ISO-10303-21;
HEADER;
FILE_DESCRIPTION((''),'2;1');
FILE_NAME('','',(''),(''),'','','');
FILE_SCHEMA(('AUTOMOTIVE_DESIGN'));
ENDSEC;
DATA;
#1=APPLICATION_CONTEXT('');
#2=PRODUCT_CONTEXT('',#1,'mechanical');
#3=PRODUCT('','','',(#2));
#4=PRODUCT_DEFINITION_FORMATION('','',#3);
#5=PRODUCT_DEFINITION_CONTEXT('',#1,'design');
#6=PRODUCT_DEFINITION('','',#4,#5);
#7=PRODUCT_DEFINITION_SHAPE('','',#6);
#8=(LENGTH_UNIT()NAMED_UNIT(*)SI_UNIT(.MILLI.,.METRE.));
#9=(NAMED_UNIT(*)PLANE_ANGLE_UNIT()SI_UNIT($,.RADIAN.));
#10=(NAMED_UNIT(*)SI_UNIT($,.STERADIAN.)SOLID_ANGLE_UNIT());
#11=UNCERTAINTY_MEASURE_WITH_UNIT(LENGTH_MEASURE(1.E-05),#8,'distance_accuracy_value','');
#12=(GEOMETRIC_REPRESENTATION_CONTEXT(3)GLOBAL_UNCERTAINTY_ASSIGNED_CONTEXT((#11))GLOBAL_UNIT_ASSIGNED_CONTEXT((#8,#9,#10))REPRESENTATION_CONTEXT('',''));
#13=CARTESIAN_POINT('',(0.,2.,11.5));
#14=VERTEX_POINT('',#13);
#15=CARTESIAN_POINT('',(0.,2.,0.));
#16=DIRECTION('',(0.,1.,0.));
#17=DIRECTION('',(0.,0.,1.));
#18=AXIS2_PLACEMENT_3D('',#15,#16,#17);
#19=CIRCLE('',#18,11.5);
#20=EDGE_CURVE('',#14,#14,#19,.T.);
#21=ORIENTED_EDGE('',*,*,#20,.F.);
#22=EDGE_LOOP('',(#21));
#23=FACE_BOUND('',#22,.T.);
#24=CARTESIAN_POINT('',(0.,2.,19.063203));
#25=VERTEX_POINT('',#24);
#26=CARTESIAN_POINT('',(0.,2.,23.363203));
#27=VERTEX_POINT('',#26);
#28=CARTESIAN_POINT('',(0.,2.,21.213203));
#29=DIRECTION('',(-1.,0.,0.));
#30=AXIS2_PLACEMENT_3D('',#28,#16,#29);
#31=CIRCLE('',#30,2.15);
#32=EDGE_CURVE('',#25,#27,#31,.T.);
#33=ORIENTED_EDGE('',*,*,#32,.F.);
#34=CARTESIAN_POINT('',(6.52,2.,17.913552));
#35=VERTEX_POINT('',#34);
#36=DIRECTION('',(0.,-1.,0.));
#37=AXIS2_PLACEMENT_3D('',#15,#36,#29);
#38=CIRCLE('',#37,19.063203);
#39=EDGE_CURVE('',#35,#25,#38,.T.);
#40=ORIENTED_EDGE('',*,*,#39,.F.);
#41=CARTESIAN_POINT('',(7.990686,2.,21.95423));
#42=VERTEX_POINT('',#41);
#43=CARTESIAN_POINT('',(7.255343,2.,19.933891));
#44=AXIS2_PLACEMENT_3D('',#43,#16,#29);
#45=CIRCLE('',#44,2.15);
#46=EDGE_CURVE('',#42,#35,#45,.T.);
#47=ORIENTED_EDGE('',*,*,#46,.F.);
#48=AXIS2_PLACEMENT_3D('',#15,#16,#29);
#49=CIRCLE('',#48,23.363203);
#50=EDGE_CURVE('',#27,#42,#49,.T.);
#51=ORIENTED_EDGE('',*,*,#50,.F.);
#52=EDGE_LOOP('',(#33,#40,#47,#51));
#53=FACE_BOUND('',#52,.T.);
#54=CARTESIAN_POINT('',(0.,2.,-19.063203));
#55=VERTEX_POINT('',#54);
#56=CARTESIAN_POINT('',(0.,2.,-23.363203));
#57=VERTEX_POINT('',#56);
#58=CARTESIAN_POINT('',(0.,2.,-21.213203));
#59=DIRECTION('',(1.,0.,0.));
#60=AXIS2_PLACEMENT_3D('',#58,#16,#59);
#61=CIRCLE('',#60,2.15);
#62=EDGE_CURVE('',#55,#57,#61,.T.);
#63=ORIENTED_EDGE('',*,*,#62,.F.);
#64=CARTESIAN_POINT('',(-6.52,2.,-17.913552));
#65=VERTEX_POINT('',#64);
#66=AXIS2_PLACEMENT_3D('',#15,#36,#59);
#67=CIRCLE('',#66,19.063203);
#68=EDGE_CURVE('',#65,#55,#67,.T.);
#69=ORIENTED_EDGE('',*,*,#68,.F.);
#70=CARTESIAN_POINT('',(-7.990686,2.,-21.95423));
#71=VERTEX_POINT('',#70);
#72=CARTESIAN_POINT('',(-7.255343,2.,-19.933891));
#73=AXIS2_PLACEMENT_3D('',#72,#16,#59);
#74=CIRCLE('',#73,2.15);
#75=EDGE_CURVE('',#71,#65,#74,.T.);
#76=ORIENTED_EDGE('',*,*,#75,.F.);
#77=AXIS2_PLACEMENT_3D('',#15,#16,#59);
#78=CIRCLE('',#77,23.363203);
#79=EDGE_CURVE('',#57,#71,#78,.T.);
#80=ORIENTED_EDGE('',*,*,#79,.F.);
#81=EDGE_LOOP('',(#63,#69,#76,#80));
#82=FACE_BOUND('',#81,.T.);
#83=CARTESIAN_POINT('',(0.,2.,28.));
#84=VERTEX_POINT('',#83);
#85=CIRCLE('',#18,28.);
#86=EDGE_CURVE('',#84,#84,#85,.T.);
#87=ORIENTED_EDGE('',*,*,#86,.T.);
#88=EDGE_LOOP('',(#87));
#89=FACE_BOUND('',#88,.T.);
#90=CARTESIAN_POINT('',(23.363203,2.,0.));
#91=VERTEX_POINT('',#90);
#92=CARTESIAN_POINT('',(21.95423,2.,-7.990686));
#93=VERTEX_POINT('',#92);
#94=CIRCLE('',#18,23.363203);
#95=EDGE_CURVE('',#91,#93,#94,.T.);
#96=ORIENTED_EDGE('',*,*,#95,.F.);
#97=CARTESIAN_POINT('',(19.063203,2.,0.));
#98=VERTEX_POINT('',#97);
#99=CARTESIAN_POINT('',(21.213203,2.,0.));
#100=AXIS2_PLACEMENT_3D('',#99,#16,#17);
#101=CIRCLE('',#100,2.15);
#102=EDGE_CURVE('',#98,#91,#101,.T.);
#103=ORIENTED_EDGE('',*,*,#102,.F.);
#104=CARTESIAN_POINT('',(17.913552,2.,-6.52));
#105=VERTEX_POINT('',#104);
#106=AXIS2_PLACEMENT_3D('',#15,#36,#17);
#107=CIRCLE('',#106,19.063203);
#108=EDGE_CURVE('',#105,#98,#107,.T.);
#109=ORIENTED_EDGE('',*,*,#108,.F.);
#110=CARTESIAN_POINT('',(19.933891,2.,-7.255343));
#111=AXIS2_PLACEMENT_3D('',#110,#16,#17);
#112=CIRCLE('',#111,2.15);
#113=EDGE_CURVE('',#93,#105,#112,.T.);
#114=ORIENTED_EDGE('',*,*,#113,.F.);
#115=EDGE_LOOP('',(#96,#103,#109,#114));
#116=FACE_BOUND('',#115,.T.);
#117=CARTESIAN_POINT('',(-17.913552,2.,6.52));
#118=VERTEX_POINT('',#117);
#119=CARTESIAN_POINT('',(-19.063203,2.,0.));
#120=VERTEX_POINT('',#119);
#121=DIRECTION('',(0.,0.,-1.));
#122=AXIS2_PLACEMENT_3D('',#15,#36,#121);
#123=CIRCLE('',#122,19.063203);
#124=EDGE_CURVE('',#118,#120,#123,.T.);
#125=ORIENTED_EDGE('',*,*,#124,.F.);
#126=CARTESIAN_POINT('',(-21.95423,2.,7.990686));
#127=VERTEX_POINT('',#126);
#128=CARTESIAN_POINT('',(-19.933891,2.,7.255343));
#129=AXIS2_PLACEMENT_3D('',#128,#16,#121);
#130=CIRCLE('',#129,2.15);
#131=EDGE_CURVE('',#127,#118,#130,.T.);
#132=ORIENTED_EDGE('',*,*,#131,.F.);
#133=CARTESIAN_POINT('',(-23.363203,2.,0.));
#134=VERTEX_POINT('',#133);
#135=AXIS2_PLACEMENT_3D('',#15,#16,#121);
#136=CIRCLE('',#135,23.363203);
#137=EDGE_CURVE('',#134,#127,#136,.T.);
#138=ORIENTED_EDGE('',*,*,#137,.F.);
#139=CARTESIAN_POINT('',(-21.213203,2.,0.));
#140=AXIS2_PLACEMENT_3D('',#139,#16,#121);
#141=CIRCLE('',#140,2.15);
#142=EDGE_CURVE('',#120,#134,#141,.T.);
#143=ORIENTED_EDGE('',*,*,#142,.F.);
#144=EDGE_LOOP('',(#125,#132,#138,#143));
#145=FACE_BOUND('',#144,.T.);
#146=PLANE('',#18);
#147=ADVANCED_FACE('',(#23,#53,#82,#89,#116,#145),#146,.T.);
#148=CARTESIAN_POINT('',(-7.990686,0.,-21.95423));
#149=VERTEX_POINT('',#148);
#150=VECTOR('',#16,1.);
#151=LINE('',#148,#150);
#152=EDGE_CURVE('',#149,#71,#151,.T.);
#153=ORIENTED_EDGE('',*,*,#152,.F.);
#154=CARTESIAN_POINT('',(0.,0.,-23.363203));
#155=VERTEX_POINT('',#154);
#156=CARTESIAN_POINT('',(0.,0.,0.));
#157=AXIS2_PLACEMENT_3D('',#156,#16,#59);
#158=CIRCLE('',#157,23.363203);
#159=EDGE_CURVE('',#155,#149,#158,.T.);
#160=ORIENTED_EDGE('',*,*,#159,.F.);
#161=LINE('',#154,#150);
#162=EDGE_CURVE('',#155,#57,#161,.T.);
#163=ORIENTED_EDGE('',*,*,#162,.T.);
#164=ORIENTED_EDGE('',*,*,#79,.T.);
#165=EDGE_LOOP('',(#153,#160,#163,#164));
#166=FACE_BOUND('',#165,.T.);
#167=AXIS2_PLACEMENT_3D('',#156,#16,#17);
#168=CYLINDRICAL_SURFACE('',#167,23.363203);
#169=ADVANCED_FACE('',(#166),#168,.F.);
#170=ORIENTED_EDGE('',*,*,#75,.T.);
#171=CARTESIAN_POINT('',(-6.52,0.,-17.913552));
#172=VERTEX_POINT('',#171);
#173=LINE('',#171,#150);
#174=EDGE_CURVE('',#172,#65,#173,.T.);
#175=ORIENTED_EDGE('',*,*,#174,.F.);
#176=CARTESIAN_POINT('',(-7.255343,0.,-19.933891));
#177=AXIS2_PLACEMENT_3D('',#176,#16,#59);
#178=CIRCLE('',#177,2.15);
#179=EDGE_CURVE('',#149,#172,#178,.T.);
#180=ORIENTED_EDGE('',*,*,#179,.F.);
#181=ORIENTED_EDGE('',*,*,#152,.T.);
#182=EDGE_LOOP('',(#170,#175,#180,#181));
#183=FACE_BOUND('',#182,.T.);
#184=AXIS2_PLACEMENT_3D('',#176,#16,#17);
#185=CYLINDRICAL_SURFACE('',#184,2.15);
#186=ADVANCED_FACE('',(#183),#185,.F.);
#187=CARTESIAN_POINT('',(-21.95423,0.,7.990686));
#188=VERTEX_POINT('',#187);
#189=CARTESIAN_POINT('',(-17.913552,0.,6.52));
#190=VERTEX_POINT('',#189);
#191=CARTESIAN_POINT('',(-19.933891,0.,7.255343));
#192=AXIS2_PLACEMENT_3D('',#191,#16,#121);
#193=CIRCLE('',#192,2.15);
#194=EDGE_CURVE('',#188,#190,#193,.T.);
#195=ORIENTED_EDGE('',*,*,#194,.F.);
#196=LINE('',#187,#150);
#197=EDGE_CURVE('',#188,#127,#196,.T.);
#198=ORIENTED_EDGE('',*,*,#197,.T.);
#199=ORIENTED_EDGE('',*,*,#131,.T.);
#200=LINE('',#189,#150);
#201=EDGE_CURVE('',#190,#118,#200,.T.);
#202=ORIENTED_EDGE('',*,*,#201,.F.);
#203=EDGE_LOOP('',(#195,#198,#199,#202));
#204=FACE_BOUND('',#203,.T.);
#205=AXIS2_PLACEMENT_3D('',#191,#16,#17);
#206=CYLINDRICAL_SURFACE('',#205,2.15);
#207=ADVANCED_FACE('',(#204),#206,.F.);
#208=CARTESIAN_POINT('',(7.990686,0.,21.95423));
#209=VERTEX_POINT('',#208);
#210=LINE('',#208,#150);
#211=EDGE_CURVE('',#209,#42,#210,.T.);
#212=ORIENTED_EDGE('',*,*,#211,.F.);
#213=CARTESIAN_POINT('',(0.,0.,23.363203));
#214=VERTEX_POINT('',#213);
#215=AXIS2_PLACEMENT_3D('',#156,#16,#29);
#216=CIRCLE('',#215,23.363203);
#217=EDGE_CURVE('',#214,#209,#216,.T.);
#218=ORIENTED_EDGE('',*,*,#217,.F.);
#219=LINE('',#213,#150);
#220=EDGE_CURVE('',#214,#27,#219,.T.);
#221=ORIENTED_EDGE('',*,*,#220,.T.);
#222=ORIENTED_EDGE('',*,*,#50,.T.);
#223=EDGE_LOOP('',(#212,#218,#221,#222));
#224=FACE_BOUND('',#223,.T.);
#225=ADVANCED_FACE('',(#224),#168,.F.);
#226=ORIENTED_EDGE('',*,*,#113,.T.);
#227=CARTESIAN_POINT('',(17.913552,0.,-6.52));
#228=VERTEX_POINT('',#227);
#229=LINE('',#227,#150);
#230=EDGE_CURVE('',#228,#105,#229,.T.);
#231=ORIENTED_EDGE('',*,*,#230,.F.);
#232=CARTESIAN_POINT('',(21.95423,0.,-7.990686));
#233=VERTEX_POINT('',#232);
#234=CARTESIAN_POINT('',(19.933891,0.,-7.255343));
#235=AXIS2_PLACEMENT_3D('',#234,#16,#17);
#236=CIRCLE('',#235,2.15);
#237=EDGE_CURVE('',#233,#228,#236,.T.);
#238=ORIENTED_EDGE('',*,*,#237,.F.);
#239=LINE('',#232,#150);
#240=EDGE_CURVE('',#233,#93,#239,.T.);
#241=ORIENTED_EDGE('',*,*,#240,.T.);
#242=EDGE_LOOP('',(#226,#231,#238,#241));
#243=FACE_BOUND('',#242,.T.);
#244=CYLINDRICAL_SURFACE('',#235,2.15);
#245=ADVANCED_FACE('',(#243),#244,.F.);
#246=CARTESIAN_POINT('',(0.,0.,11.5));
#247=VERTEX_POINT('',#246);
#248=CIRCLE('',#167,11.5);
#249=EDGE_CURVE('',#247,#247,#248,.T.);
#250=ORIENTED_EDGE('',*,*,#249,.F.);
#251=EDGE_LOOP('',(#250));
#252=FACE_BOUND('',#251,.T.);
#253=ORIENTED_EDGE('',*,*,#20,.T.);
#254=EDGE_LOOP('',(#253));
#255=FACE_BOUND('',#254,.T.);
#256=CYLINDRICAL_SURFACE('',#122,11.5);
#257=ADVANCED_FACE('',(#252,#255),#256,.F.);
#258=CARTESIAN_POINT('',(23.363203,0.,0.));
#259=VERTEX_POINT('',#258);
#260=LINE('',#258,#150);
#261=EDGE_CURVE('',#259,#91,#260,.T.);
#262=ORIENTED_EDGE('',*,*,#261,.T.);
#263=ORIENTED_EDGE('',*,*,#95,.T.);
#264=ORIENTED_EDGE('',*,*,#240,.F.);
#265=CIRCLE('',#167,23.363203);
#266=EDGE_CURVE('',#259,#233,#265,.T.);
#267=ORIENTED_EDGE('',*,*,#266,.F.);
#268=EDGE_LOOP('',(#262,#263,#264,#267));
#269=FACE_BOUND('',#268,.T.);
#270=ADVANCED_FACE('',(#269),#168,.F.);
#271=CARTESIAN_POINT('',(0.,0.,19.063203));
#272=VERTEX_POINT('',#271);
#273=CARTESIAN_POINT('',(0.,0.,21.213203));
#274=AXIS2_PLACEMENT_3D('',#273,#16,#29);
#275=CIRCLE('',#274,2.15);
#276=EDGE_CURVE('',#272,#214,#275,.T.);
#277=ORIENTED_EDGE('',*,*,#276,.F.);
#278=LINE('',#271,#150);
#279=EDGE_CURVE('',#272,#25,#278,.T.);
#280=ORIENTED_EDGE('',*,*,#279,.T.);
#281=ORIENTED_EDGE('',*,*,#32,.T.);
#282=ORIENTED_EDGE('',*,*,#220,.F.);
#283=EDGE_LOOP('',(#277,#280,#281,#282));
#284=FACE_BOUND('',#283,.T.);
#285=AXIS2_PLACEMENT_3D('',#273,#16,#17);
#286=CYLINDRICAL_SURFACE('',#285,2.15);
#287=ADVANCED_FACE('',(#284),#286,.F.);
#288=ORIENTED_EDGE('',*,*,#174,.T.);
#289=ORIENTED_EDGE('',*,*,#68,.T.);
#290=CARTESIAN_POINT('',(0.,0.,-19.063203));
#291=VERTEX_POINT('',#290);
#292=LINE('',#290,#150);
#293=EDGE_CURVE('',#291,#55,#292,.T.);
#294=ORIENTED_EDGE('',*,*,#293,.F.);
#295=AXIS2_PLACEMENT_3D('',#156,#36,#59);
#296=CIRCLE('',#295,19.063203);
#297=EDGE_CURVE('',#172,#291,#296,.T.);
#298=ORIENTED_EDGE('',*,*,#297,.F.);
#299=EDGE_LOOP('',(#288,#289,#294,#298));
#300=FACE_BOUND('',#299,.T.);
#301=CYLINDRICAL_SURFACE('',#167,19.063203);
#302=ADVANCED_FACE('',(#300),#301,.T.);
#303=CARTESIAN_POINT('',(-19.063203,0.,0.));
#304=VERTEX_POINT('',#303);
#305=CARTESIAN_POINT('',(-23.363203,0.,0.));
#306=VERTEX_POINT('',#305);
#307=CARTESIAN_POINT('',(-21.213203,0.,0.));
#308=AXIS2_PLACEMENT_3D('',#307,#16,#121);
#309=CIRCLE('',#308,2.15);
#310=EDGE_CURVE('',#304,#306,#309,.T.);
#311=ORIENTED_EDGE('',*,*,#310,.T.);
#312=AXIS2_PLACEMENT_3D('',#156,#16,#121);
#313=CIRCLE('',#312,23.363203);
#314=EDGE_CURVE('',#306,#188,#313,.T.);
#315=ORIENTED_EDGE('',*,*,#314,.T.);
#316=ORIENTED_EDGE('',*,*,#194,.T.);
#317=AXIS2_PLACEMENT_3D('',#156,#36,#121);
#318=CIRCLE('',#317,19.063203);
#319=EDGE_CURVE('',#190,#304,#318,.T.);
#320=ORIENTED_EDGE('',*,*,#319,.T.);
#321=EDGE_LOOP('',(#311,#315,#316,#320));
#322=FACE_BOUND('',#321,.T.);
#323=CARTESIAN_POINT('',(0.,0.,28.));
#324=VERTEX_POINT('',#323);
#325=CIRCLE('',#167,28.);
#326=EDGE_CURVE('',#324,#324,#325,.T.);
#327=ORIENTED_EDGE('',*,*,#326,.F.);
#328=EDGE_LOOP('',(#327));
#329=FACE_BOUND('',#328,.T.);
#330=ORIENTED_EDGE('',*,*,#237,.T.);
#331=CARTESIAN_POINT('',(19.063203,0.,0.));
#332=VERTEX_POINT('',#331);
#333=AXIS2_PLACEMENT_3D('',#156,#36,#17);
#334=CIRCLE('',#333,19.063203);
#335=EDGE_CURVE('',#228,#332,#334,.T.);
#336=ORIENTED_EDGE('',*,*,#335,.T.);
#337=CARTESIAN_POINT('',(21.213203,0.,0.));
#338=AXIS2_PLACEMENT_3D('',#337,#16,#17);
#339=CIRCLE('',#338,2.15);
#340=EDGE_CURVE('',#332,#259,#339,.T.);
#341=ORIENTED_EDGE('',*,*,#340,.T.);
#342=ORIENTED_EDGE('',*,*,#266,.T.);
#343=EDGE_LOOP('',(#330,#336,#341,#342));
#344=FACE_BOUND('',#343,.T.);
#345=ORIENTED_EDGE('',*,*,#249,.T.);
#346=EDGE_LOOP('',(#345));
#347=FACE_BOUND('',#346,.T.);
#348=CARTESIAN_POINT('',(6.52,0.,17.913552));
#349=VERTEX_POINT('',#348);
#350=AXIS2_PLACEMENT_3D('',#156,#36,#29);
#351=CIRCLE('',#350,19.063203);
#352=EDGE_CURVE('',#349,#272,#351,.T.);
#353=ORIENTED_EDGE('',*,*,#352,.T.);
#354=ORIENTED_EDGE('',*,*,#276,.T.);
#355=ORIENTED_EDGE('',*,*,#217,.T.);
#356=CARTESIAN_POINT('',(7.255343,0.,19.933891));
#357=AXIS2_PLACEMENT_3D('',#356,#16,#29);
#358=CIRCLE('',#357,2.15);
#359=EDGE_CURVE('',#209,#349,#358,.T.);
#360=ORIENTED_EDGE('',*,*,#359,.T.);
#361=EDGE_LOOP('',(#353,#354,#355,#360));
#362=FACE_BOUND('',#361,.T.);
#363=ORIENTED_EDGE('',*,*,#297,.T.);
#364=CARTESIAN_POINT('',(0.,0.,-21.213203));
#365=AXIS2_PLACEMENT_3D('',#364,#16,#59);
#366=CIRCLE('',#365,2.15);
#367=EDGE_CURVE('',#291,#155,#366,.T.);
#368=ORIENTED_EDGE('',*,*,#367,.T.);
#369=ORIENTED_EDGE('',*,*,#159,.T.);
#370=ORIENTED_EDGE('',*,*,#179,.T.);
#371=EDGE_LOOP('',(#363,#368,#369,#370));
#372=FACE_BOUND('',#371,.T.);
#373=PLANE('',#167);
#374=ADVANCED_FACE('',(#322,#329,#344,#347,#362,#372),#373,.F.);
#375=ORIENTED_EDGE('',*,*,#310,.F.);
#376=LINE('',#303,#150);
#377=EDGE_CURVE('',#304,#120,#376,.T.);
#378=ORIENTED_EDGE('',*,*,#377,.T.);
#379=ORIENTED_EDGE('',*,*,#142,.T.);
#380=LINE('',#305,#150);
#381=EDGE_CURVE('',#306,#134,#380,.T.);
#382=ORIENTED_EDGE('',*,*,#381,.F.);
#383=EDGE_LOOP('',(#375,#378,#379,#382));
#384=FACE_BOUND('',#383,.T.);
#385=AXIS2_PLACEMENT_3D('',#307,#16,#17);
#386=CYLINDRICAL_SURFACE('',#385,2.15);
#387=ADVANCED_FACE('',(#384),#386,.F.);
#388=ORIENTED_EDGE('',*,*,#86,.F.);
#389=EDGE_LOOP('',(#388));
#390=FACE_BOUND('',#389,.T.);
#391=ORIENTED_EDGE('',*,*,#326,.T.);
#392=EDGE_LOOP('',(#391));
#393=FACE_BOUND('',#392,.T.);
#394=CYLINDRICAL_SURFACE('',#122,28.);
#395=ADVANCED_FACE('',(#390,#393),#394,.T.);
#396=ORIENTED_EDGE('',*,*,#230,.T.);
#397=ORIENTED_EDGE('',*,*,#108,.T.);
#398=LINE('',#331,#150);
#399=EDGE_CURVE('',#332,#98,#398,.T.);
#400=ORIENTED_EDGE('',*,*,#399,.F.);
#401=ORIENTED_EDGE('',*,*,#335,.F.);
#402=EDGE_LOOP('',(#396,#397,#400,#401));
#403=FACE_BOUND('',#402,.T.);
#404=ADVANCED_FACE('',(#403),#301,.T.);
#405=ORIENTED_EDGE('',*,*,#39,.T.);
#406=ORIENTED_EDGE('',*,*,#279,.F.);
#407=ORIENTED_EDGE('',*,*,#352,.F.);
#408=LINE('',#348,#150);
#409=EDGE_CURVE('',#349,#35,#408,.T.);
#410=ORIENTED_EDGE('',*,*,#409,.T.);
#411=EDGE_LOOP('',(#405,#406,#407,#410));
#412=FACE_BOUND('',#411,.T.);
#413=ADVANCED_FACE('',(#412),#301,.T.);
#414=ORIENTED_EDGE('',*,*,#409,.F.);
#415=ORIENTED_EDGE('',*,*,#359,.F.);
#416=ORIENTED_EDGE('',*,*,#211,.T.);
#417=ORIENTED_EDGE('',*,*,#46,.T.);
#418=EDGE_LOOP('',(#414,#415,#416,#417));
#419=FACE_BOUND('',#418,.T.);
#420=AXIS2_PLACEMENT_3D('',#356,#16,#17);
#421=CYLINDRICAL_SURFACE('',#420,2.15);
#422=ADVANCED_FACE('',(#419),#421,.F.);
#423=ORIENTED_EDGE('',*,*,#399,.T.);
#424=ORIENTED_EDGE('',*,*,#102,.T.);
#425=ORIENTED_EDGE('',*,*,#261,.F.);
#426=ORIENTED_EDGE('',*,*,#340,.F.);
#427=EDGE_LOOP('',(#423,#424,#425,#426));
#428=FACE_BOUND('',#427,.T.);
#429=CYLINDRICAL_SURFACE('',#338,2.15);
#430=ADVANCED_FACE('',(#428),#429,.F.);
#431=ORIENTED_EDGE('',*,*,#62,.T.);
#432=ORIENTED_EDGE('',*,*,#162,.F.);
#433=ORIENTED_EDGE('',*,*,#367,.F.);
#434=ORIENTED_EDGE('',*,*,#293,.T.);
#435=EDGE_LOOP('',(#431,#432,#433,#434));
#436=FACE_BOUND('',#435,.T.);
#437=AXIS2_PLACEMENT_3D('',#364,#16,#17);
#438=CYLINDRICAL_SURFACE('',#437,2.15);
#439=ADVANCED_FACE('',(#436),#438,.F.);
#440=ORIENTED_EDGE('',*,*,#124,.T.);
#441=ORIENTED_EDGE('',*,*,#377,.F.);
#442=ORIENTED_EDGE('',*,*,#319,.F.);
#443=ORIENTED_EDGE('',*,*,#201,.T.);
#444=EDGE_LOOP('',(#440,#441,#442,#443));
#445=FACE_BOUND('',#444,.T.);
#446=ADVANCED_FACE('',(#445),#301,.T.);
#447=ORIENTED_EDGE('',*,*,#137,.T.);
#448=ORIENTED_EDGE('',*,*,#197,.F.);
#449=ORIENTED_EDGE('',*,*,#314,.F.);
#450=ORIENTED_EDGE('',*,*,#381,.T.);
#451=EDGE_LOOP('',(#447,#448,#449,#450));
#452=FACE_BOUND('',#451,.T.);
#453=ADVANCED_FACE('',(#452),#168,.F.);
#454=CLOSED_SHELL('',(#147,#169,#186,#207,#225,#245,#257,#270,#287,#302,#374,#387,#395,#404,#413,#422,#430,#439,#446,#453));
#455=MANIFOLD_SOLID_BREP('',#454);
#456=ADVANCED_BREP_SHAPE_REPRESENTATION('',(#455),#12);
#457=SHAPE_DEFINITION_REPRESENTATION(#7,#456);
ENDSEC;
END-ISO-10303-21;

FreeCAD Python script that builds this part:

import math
import FreeCAD as App
import Part
import Sketcher
from FreeCAD import Vector
Q = App.Units.Quantity

doc = App.newDocument("Part")
body = doc.addObject("PartDesign::Body", "Body")

# Sketch on XZ plane
sketch1 = body.newObject("Sketcher::SketchObject", "Sketch")
sketch1.AttachmentSupport = (doc.getObject("XZ_Plane"), [""])
sketch1.MapMode = "FlatFace"
sketch1.addGeometry(Part.Circle(Vector(0, 0, 0), Vector(0, 0, 1), 28), False)
sketch1.addGeometry(Part.Circle(Vector(0, 0, 0), Vector(0, 0, 1), 12), False)
sketch1.addConstraint(Sketcher.Constraint("Coincident", 0, 3, -1, 1))
sketch1.addConstraint(Sketcher.Constraint("Coincident", 1, 3, -1, 1))
sketch1.addConstraint(Sketcher.Constraint("Diameter", 0, Q("56 mm")))
sketch1.addConstraint(Sketcher.Constraint("Diameter", 1, Q("23 mm")))
pad1 = body.newObject("PartDesign::Pad", "Pad")
pad1.Profile = sketch1
pad1.Length = 2
pad1.Reversed = True

# Sketch on XZ plane
sketch2 = body.newObject("Sketcher::SketchObject", "Sketch001")
sketch2.AttachmentSupport = (doc.getObject("XZ_Plane"), [""])
sketch2.MapMode = "FlatFace"
sketch2.AttachmentOffset = App.Placement(Vector(0, 0, -2), App.Rotation())
sketch2.addGeometry(Part.ArcOfCircle(Part.Circle(Vector(19.9, -7.3, 0), Vector(0, 0, 1), 2.1), math.radians(160), math.radians(340)), False)
sketch2.addGeometry(Part.ArcOfCircle(Part.Circle(Vector(0, 0, 0), Vector(0, 0, 1), 19.1), math.radians(-20), math.radians(0)), False)
sketch2.addGeometry(Part.ArcOfCircle(Part.Circle(Vector(21.2, 0, 0), Vector(0, 0, 1), 2.1), math.radians(0), math.radians(180)), False)
sketch2.addGeometry(Part.ArcOfCircle(Part.Circle(Vector(0, 0, 0), Vector(0, 0, 1), 23.4), math.radians(-20), math.radians(0)), False)
sketch2.addConstraint(Sketcher.Constraint("Tangent", 0, 1, 1, 1))
sketch2.addConstraint(Sketcher.Constraint("Tangent", 1, 2, 2, 2))
sketch2.addConstraint(Sketcher.Constraint("Tangent", 2, 1, 3, 2))
sketch2.addConstraint(Sketcher.Constraint("Tangent", 3, 1, 0, 2))
sketch2.addConstraint(Sketcher.Constraint("Coincident", 1, 3, -1, 1))
sketch2.addConstraint(Sketcher.Constraint("Coincident", 3, 3, -1, 1))
sketch2.addConstraint(Sketcher.Constraint("PointOnObject", 2, 3, -1))
sketch2.addConstraint(Sketcher.Constraint("Radius", 0, Q("2.15 mm")))
sketch2.addConstraint(Sketcher.Constraint("DistanceY", 0, 1, -1, 1, Q("6.52 mm")))
sketch2.addConstraint(Sketcher.Constraint("Radius", 1, Q("19.063203 mm")))
pocket1 = body.newObject("PartDesign::Pocket", "Pocket")
pocket1.Profile = sketch2
pocket1.Type = "ThroughAll"
pocket1.Reversed = True
doc.recompute()

polarpattern = body.newObject("PartDesign::PolarPattern", "PolarPattern")
polarpattern.Originals = [pocket1]
polarpattern.Axis = (doc.getObject("Y_Axis"), [""])
polarpattern.Angle = 360
polarpattern.Occurrences = 4
body.Tip = polarpattern

doc.recompute()
